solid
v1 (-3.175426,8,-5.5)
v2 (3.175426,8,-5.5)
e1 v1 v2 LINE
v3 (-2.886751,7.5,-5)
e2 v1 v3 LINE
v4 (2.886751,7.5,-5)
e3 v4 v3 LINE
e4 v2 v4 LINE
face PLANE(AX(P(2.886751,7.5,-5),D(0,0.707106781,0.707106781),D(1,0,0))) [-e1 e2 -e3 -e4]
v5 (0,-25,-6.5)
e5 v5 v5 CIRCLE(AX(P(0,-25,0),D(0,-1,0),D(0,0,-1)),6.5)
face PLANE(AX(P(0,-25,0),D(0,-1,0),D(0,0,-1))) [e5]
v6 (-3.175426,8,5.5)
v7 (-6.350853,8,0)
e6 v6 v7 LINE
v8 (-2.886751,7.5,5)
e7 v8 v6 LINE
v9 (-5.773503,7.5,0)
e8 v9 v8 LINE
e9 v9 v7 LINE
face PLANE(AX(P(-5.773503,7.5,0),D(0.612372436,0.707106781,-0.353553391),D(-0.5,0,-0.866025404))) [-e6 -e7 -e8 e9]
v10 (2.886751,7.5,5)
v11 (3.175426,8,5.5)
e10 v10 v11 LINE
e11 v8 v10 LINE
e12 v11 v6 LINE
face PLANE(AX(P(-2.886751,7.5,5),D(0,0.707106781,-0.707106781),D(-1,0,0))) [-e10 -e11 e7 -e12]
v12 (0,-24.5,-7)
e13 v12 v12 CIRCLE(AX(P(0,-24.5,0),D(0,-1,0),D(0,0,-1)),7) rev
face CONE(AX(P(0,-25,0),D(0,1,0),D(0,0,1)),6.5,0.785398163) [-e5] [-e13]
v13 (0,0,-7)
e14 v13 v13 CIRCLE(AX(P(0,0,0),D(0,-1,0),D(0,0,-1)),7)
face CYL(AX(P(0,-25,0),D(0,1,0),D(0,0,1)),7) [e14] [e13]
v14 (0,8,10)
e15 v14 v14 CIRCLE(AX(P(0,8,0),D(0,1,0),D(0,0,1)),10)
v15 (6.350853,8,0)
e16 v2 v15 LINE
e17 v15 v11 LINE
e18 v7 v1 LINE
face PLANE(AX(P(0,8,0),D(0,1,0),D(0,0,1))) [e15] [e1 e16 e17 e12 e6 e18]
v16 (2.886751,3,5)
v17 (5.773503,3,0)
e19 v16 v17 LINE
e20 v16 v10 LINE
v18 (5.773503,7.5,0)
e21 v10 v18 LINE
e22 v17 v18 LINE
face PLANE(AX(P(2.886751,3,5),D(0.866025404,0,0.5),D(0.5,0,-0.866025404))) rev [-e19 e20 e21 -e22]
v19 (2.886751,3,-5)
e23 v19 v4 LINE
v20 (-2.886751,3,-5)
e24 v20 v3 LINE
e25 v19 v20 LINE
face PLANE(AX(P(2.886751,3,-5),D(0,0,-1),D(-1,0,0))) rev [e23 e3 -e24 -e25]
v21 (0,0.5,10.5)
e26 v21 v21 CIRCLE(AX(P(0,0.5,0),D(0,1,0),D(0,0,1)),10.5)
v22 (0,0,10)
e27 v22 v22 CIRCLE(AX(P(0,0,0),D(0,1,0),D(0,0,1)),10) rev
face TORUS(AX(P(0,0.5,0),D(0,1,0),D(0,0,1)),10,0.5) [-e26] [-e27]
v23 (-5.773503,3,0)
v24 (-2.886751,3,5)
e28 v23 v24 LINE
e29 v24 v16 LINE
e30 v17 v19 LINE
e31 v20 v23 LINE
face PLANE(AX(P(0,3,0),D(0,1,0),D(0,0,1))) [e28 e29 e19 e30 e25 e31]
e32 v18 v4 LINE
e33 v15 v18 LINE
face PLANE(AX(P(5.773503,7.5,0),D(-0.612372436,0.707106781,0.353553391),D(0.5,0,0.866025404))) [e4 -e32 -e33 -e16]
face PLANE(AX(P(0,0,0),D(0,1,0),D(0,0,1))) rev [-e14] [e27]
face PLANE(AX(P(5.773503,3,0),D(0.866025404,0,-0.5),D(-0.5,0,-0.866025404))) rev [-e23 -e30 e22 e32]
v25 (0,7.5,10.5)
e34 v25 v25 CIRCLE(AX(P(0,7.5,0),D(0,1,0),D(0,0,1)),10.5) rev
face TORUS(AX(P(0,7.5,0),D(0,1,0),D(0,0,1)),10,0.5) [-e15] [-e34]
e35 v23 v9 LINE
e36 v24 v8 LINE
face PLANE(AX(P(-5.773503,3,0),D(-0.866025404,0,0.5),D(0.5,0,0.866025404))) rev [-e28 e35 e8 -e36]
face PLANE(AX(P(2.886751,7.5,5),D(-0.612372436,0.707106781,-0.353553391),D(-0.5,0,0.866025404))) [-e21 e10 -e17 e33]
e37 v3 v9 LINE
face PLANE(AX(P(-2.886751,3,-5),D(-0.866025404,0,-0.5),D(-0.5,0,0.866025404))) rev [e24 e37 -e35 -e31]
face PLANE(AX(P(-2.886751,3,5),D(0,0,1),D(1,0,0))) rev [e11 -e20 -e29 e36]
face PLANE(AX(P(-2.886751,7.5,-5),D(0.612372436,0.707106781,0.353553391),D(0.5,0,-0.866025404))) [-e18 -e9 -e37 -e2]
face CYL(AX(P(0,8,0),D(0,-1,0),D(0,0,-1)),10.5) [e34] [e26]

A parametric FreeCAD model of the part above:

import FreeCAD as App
import Part
import Sketcher
Q = App.Units.Quantity


def edges_at(feature, points):
    """Names of the edges that pass closest to the given points."""
    edges = feature.Shape.Edges
    near = lambda p: min(range(len(edges)), key=lambda i: edges[i].distToShape(Part.Vertex(*p))[0])
    return sorted({f"Edge{near(p) + 1}" for p in points})

doc = App.newDocument("Part")
body = doc.addObject("PartDesign::Body", "Body")

sketch1 = body.newObject("Sketcher::SketchObject", "Sketch")
sketch1.AttachmentSupport = (doc.getObject("XZ_Plane"), [""])
sketch1.MapMode = "FlatFace"
sketch1.addGeometry(Part.Circle(App.Vector(0, 0, 0), App.Vector(0, 0, 1), 10), False)
sketch1.addConstraint([
    Sketcher.Constraint("Coincident", 0, 3, -1, 1),
    Sketcher.Constraint("Diameter", 0, Q("21 mm")),
])
pad1 = body.newObject("PartDesign::Pad", "Pad")
pad1.Profile = sketch1
pad1.Length = 8
pad1.Reversed = True

sketch2 = body.newObject("Sketcher::SketchObject", "Sketch001")
sketch2.AttachmentSupport = (doc.getObject("XZ_Plane"), [""])
sketch2.MapMode = "FlatFace"
sketch2.addGeometry(Part.Circle(App.Vector(0, 0, 0), App.Vector(0, 0, 1), 7), False)
sketch2.addConstraint([
    Sketcher.Constraint("Coincident", 0, 3, -1, 1),
    Sketcher.Constraint("Diameter", 0, Q("14 mm")),
])
pad2 = body.newObject("PartDesign::Pad", "Pad001")
pad2.Profile = sketch2
pad2.Length = 25

sketch3 = body.newObject("Sketcher::SketchObject", "Sketch002")
sketch3.AttachmentSupport = (doc.getObject("XZ_Plane"), [""])
sketch3.MapMode = "FlatFace"
sketch3.AttachmentOffset = App.Placement(App.Vector(0, 0, -8), App.Rotation())
sketch3.addGeometry([
    Part.LineSegment(App.Vector(6, 0, 0), App.Vector(3, -5, 0)),
    Part.LineSegment(App.Vector(3, -5, 0), App.Vector(-3, -5, 0)),
    Part.LineSegment(App.Vector(-3, -5, 0), App.Vector(-6, 0, 0)),
    Part.LineSegment(App.Vector(-6, 0, 0), App.Vector(-3, 5, 0)),
    Part.LineSegment(App.Vector(-3, 5, 0), App.Vector(3, 5, 0)),
    Part.LineSegment(App.Vector(3, 5, 0), App.Vector(6, 0, 0)),
], False)
sketch3.addConstraint([
    Sketcher.Constraint("Coincident", 0, 2, 1, 1),
    Sketcher.Constraint("Coincident", 1, 2, 2, 1),
    Sketcher.Constraint("Coincident", 2, 2, 3, 1),
    Sketcher.Constraint("Coincident", 3, 2, 4, 1),
    Sketcher.Constraint("Coincident", 4, 2, 5, 1),
    Sketcher.Constraint("Coincident", 5, 2, 0, 1),
    Sketcher.Constraint("Horizontal", 1),
    Sketcher.Constraint("Horizontal", 4),
    Sketcher.Constraint("Symmetric", 0, 2, 3, 2, -1, 1),
    Sketcher.Constraint("Symmetric", 2, 2, 5, 2, -1, 1),
    Sketcher.Constraint("PointOnObject", 2, 2, -1),
    Sketcher.Constraint("Parallel", 2, 5),
    Sketcher.Constraint("Vertical", 1, 2, 3, 2),
    Sketcher.Constraint("Angle", 0, Q("-120 deg")),
    Sketcher.Constraint("DistanceY", 0, 2, -1, 1, Q("5 mm")),
    Sketcher.Constraint("DistanceX", 1, 2, 1, 1, Q("5.773503 mm")),
])
pocket1 = body.newObject("PartDesign::Pocket", "Pocket")
pocket1.Profile = sketch3
pocket1.Length = 5
pocket1.Reversed = True
doc.recompute()

chamfer = body.newObject("PartDesign::Chamfer", "Chamfer")
chamfer.Base = (pocket1, edges_at(pocket1, [(0, -25, 7)]))
chamfer.Size = 0.5
doc.recompute()

fillet = body.newObject("PartDesign::Fillet", "Fillet")
fillet.Base = (chamfer, edges_at(chamfer, [(0, 0, -10.5), (0, 8, -10.5)]))
fillet.Radius = 0.5
doc.recompute()

chamfer2 = body.newObject("PartDesign::Chamfer", "Chamfer001")
chamfer2.Base = (fillet, edges_at(fillet, [
    (4.33, 8, 2.5),
    (4.33, 8, -2.5),
    (0, 8, -5),
    (-4.33, 8, -2.5),
    (-4.33, 8, 2.5),
    (0, 8, 5),
]))
chamfer2.Size = 0.5

doc.recompute()
